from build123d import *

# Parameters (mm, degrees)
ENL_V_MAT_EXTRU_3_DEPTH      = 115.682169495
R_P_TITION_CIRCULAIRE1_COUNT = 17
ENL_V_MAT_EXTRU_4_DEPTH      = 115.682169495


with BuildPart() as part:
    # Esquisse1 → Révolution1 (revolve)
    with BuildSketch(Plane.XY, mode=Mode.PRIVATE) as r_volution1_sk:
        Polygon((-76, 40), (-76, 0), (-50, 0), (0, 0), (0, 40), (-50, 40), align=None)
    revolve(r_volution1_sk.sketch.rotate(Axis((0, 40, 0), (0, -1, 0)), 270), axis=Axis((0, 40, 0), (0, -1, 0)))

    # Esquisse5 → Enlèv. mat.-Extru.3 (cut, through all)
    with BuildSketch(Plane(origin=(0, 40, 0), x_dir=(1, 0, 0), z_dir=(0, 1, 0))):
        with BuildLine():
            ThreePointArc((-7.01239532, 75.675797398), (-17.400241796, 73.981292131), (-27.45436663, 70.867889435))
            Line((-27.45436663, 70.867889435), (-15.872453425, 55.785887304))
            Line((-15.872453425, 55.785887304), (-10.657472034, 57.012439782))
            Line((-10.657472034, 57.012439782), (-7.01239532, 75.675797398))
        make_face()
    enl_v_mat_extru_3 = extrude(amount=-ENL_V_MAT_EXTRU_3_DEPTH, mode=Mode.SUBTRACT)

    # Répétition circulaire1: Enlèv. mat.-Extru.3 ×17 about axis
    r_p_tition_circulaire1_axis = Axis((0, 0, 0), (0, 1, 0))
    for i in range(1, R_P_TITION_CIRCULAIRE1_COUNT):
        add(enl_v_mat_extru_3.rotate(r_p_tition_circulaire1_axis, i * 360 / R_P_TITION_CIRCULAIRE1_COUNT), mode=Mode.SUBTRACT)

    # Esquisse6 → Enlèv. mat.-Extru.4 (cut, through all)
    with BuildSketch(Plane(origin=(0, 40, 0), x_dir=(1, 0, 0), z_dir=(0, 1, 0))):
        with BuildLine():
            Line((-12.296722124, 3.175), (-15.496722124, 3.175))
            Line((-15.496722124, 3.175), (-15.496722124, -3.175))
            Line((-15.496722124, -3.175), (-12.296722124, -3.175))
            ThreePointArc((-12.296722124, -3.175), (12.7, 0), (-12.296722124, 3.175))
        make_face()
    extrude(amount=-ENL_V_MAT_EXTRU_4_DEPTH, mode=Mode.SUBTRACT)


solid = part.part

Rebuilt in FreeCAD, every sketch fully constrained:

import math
import FreeCAD as App
import Part
import Sketcher
Q = App.Units.Quantity

doc = App.newDocument("Part")
params = doc.addObject("Spreadsheet::Sheet", "Params")
for row, (alias, value) in enumerate([
    ("sketch1_width", "76 mm"),
    ("sketch1_height", "40 mm"),
    ("revolution_angle", "360 deg"),
    ("sketch2_radius", "76 mm"),
    ("sketch3_radius", "12.7 mm"),
    ("sketch3_width", "3.2 mm"),
    ("sketch3_height", "6.35 mm"),
], start=1):
    params.set(f"A{row}", alias)
    params.set(f"B{row}", "=" + value)
    params.setAlias(f"B{row}", alias)

body = doc.addObject("PartDesign::Body", "Body")

sketch1 = doc.addObject("Sketcher::SketchObject", "Sketch")
body.addObject(sketch1)
sketch1.AttachmentSupport = (doc.XY_Plane, [""])
sketch1.MapMode = "FlatFace"
sketch1.addGeometry([
    Part.LineSegment(App.Vector(-76, 40, 0), App.Vector(-76, 0, 0)),
    Part.LineSegment(App.Vector(-76, 0, 0), App.Vector(0, 0, 0)),
    Part.LineSegment(App.Vector(0, 0, 0), App.Vector(0, 40, 0)),
    Part.LineSegment(App.Vector(0, 40, 0), App.Vector(-76, 40, 0)),
], False)
sketch1.addConstraint([
    Sketcher.Constraint("Coincident", 0, 2, 1, 1),
    Sketcher.Constraint("Coincident", 1, 2, 2, 1),
    Sketcher.Constraint("Coincident", 2, 2, 3, 1),
    Sketcher.Constraint("Coincident", 3, 2, 0, 1),
    Sketcher.Constraint("Vertical", 0),
    Sketcher.Constraint("Horizontal", 1),
    Sketcher.Constraint("Vertical", 2),
    Sketcher.Constraint("Horizontal", 3),
    Sketcher.Constraint("Coincident", 1, 2, -1, 1),
    Sketcher.Constraint("DistanceX", 1, 1, 1, 2, Q("76 mm")),
    Sketcher.Constraint("DistanceY", 0, 2, 0, 1, Q("40 mm")),
])
sketch1.setExpression("Constraints[9]", "Params.sketch1_width")
sketch1.setExpression("Constraints[10]", "Params.sketch1_height")
revolution = doc.addObject("PartDesign::Revolution", "Revolution")
body.addObject(revolution)
revolution.Profile = sketch1
revolution.ReferenceAxis = (sketch1, ["V_Axis"])
revolution.setExpression("Angle", "Params.revolution_angle")

sketch2 = doc.addObject("Sketcher::SketchObject", "Sketch001")
body.addObject(sketch2)
sketch2.AttachmentSupport = (doc.XZ_Plane, [""])
sketch2.MapMode = "FlatFace"
sketch2.AttachmentOffset = App.Placement(App.Vector(0, 0, -40), App.Rotation())
sketch2.addGeometry([
    Part.ArcOfCircle(Part.Circle(App.Vector(0, 0, 0), App.Vector(0, 0, 1), 76), math.radians(-111.18), math.radians(-95.29)),
    Part.LineSegment(App.Vector(-27, -71, 0), App.Vector(-16, -56, 0)),
    Part.LineSegment(App.Vector(-16, -56, 0), App.Vector(-11, -57, 0)),
    Part.LineSegment(App.Vector(-11, -57, 0), App.Vector(-7, -76, 0)),
], False)
sketch2.addConstraint([
    Sketcher.Constraint("Coincident", 0, 1, 1, 1),
    Sketcher.Constraint("Coincident", 1, 2, 2, 1),
    Sketcher.Constraint("Coincident", 2, 2, 3, 1),
    Sketcher.Constraint("Coincident", 3, 2, 0, 2),
    Sketcher.Constraint("Coincident", 0, 3, -1, 1),
    Sketcher.Constraint("Equal", 1, 3),
    Sketcher.Constraint("Radius", 0, Q("76 mm")),
    Sketcher.Constraint("Distance", 1, Q("19.01598 mm")),
    Sketcher.Constraint("Distance", 2, Q("5.357281 mm")),
    Sketcher.Constraint("DistanceY", 0, 1, -1, 1, Q("70.867889 mm")),
    Sketcher.Constraint("DistanceY", 2, 2, -1, 1, Q("57.01244 mm")),
    Sketcher.Constraint("DistanceX", 1, 2, 2, 2, Q("5.214981 mm")),
])
sketch2.setExpression("Constraints[6]", "Params.sketch2_radius")
pocket1 = doc.addObject("PartDesign::Pocket", "Pocket")
body.addObject(pocket1)
pocket1.Profile = sketch2
pocket1.Type = "ThroughAll"
pocket1.Reversed = True
doc.recompute()

polarpattern = doc.addObject("PartDesign::PolarPattern", "PolarPattern")
body.addObject(polarpattern)
polarpattern.Originals = [pocket1]
polarpattern.Axis = (doc.Y_Axis, [""])
polarpattern.Angle = 360
polarpattern.Occurrences = 17
body.Tip = polarpattern

sketch3 = doc.addObject("Sketcher::SketchObject", "Sketch002")
body.addObject(sketch3)
sketch3.AttachmentSupport = (doc.XZ_Plane, [""])
sketch3.MapMode = "FlatFace"
sketch3.AttachmentOffset = App.Placement(App.Vector(0, 0, -40), App.Rotation())
sketch3.addGeometry([
    Part.LineSegment(App.Vector(-12.3, -3.2, 0), App.Vector(-15.5, -3.2, 0)),
    Part.LineSegment(App.Vector(-15.5, -3.2, 0), App.Vector(-15.5, 3.2, 0)),
    Part.LineSegment(App.Vector(-15.5, 3.2, 0), App.Vector(-12.3, 3.2, 0)),
    Part.ArcOfCircle(Part.Circle(App.Vector(0, 0, 0), App.Vector(0, 0, 1), 12.7), math.radians(-166), math.radians(166)),
], False)
sketch3.addConstraint([
    Sketcher.Constraint("Coincident", 0, 2, 1, 1),
    Sketcher.Constraint("Coincident", 1, 2, 2, 1),
    Sketcher.Constraint("Coincident", 2, 2, 3, 2),
    Sketcher.Constraint("Coincident", 3, 1, 0, 1),
    Sketcher.Constraint("Horizontal", 0),
    Sketcher.Constraint("Vertical", 1),
    Sketcher.Constraint("Horizontal", 2),
    Sketcher.Constraint("Coincident", 3, 3, -1, 1),
    Sketcher.Constraint("Vertical", 2, 2, 3, 1),
    Sketcher.Constraint("Radius", 3, Q("12.7 mm")),
    Sketcher.Constraint("DistanceX", 0, 2, 0, 1, Q("3.2 mm")),
    Sketcher.Constraint("DistanceY", 1, 1, 1, 2, Q("6.35 mm")),
])
sketch3.setExpression("Constraints[9]", "Params.sketch3_radius")
sketch3.setExpression("Constraints[10]", "Params.sketch3_width")
sketch3.setExpression("Constraints[11]", "Params.sketch3_height")
pocket2 = doc.addObject("PartDesign::Pocket", "Pocket001")
body.addObject(pocket2)
pocket2.Profile = sketch3
pocket2.Type = "ThroughAll"
pocket2.Reversed = True

doc.recompute()
